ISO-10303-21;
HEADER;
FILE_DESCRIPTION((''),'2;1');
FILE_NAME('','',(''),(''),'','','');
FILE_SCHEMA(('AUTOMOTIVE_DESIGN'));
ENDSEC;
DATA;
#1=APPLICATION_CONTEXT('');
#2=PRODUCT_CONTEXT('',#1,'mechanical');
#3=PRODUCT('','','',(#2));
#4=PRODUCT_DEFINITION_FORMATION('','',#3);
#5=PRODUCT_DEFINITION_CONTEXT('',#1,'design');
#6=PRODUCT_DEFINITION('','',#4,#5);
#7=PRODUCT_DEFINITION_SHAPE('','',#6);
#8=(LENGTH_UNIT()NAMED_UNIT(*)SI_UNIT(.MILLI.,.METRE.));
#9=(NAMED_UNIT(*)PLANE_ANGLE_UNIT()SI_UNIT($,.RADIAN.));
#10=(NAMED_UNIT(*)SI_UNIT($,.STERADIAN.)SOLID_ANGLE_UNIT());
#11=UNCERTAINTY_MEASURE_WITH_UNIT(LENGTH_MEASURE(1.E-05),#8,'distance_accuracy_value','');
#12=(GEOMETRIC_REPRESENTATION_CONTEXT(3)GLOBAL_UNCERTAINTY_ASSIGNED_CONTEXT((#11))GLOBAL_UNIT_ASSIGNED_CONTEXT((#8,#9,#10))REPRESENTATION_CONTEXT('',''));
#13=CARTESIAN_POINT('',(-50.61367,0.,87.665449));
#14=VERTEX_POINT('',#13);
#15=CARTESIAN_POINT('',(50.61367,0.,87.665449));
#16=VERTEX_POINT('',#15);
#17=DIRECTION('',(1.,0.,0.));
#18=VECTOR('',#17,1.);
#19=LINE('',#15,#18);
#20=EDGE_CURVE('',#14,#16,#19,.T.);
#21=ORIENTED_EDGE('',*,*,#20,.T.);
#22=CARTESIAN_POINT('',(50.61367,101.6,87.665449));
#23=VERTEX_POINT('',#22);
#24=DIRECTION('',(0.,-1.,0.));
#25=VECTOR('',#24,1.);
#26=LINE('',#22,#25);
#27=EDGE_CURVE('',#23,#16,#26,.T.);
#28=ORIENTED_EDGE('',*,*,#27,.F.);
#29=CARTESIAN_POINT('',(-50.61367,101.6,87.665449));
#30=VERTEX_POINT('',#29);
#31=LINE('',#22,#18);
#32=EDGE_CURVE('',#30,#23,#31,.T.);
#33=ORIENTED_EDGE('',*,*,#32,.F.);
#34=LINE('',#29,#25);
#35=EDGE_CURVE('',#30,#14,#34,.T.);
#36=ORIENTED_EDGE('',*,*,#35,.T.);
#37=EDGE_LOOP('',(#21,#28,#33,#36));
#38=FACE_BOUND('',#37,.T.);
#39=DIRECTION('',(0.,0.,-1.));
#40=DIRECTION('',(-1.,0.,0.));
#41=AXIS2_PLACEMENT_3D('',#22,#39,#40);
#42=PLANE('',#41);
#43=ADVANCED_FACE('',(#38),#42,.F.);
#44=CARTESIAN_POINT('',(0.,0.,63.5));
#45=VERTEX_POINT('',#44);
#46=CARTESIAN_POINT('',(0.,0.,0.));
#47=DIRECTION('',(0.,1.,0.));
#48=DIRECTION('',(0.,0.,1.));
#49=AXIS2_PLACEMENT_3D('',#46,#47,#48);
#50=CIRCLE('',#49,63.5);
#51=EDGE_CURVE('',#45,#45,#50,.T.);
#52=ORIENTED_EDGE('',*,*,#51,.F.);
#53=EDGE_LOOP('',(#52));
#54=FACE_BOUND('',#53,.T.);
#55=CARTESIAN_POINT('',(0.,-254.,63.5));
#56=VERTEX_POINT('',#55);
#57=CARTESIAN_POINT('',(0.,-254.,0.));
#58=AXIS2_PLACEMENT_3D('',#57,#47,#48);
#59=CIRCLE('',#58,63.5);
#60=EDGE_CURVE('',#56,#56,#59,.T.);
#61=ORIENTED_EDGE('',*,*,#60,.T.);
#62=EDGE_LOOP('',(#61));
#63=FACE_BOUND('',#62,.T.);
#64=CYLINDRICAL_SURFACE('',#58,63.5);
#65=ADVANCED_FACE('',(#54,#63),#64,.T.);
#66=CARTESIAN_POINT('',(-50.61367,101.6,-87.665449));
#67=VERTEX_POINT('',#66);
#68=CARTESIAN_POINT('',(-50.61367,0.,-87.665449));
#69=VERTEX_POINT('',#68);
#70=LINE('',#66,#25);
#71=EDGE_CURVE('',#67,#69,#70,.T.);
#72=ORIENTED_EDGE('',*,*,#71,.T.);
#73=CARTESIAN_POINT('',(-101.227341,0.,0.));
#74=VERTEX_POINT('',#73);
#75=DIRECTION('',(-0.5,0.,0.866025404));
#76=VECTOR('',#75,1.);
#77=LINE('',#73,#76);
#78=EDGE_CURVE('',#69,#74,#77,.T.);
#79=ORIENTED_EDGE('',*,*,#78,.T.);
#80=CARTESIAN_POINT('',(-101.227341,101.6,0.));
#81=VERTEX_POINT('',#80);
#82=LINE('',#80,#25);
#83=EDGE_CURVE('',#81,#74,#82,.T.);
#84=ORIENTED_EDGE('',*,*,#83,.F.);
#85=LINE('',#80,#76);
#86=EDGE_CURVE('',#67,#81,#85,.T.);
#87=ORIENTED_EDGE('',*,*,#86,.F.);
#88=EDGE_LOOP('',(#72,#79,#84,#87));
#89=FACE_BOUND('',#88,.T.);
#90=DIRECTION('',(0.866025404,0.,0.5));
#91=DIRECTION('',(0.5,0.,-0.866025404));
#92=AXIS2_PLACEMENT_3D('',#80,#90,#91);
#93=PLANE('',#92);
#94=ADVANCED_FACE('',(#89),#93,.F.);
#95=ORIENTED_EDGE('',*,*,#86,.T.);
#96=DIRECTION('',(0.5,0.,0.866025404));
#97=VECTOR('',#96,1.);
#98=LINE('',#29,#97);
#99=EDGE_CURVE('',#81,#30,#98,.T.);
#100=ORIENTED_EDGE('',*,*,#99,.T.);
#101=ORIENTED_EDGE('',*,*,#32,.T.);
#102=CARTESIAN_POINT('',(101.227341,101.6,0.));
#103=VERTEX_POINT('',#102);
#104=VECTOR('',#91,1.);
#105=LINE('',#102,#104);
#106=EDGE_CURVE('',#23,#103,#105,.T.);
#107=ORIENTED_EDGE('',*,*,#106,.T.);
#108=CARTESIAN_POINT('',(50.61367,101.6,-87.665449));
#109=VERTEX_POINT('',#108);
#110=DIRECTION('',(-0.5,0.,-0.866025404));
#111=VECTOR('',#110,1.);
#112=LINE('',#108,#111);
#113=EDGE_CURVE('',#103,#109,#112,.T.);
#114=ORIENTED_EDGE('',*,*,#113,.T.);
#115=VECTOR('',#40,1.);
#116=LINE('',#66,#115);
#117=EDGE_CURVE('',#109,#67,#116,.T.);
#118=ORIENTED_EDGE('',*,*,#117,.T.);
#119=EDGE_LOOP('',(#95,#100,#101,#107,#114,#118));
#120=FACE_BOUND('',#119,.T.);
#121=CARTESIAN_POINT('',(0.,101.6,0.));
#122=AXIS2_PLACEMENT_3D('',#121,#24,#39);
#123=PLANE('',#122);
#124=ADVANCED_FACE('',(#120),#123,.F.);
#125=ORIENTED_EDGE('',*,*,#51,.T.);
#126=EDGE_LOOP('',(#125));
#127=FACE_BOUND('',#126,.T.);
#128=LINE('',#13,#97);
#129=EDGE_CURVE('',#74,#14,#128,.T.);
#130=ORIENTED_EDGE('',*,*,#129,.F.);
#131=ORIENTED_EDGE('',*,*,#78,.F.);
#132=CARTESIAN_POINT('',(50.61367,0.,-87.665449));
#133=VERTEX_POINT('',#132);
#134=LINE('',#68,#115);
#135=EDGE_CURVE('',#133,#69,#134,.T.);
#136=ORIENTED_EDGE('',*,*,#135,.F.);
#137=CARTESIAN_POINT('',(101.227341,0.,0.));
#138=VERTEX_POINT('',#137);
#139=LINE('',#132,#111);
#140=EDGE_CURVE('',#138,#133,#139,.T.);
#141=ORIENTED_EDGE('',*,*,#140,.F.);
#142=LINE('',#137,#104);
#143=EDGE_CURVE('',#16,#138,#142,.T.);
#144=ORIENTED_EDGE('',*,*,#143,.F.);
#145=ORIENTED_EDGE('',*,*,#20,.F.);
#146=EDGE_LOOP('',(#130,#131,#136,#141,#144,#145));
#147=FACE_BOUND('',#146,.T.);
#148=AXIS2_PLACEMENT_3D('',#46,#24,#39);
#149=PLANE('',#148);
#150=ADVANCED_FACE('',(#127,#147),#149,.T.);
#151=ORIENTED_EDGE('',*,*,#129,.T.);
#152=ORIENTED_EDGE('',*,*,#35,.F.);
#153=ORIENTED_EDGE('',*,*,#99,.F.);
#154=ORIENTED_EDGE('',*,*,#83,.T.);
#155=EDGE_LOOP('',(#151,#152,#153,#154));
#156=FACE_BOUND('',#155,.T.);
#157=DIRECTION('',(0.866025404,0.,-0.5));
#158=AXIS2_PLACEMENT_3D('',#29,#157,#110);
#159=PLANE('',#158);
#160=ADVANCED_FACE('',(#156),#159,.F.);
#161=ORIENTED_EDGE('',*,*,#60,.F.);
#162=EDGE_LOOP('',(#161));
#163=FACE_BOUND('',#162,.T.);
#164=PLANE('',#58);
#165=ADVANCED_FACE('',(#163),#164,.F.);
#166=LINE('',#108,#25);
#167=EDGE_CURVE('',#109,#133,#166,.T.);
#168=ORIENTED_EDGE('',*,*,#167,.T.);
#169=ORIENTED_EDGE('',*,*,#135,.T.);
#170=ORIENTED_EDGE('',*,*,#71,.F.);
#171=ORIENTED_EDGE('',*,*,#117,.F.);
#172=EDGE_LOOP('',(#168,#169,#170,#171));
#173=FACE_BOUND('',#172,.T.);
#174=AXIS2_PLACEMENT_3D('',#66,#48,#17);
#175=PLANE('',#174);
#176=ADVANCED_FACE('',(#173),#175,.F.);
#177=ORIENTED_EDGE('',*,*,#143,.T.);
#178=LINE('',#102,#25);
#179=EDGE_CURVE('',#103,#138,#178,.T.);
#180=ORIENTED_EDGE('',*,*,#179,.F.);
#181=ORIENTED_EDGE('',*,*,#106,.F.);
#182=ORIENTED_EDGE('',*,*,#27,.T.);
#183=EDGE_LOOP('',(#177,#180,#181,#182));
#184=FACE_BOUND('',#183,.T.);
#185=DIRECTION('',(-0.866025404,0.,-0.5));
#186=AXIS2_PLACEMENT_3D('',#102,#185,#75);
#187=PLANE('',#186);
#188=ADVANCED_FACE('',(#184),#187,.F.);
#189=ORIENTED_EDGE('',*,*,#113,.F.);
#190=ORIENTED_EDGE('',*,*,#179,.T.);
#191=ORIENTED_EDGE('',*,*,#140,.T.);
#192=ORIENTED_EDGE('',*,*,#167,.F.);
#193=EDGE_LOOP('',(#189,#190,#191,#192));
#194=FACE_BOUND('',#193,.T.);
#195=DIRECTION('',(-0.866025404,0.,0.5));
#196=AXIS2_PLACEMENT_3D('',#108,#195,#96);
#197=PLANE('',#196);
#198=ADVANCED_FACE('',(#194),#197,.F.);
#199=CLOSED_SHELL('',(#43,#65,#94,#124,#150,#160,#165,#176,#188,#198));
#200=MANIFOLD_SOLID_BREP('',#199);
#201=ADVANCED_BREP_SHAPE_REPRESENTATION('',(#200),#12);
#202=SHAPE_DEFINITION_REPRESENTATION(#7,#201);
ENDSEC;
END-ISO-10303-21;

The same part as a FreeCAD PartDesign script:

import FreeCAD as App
import Part
import Sketcher
Q = App.Units.Quantity

doc = App.newDocument("Part")
params = doc.addObject("Spreadsheet::Sheet", "Params")
for row, (alias, value) in enumerate([
    ("sketch1_diameter", "5 in"),
    ("pad1_length", "10 in"),
    ("pad2_length", "4 in"),
], start=1):
    params.set(f"A{row}", alias)
    params.set(f"B{row}", "=" + value)
    params.setAlias(f"B{row}", alias)

body = doc.addObject("PartDesign::Body", "Body")

sketch1 = doc.addObject("Sketcher::SketchObject", "Sketch")
body.addObject(sketch1)
sketch1.AttachmentSupport = (doc.XZ_Plane, [""])
sketch1.MapMode = "FlatFace"
sketch1.addGeometry(Part.Circle(App.Vector(0, 0, 0), App.Vector(0, 0, 1), 64), False)
sketch1.addConstraint(Sketcher.Constraint("Coincident", 0, 3, -1, 1))
sketch1.addConstraint(Sketcher.Constraint("Diameter", 0, Q("5 in")))
sketch1.setExpression("Constraints[1]", "Params.sketch1_diameter")
pad1 = doc.addObject("PartDesign::Pad", "Pad")
body.addObject(pad1)
pad1.Profile = sketch1
pad1.setExpression("Length", "Params.pad1_length")

sketch2 = doc.addObject("Sketcher::SketchObject", "Sketch001")
body.addObject(sketch2)
sketch2.AttachmentSupport = (doc.XZ_Plane, [""])
sketch2.MapMode = "FlatFace"
sketch2.addGeometry(Part.LineSegment(App.Vector(51, -88, 0), App.Vector(-51, -88, 0)), False)
sketch2.addGeometry(Part.LineSegment(App.Vector(-51, -88, 0), App.Vector(-101, 0, 0)), False)
sketch2.addGeometry(Part.LineSegment(App.Vector(-101, 0, 0), App.Vector(-51, 88, 0)), False)
sketch2.addGeometry(Part.LineSegment(App.Vector(-51, 88, 0), App.Vector(51, 88, 0)), False)
sketch2.addGeometry(Part.LineSegment(App.Vector(51, 88, 0), App.Vector(101, 0, 0)), False)
sketch2.addGeometry(Part.LineSegment(App.Vector(101, 0, 0), App.Vector(51, -88, 0)), False)
sketch2.addConstraint(Sketcher.Constraint("Coincident", 0, 2, 1, 1))
sketch2.addConstraint(Sketcher.Constraint("Coincident", 1, 2, 2, 1))
sketch2.addConstraint(Sketcher.Constraint("Coincident", 2, 2, 3, 1))
sketch2.addConstraint(Sketcher.Constraint("Coincident", 3, 2, 4, 1))
sketch2.addConstraint(Sketcher.Constraint("Coincident", 4, 2, 5, 1))
sketch2.addConstraint(Sketcher.Constraint("Coincident", 5, 2, 0, 1))
sketch2.addConstraint(Sketcher.Constraint("Horizontal", 0))
sketch2.addConstraint(Sketcher.Constraint("Horizontal", 3))
sketch2.addConstraint(Sketcher.Constraint("Symmetric", 0, 2, 3, 2, -1, 1))
sketch2.addConstraint(Sketcher.Constraint("Symmetric", 1, 2, 4, 2, -1, 1))
sketch2.addConstraint(Sketcher.Constraint("PointOnObject", 1, 2, -1))
sketch2.addConstraint(Sketcher.Constraint("Parallel", 2, 5))
sketch2.addConstraint(Sketcher.Constraint("Vertical", 0, 2, 2, 2))
sketch2.addConstraint(Sketcher.Constraint("Angle", 1, Q("120 deg")))
sketch2.addConstraint(Sketcher.Constraint("DistanceX", 0, 2, 0, 1, Q("101.227341 mm")))
sketch2.addConstraint(Sketcher.Constraint("Distance", 1, Q("101.227341 mm")))
pad2 = doc.addObject("PartDesign::Pad", "Pad001")
body.addObject(pad2)
pad2.Profile = sketch2
pad2.setExpression("Length", "Params.pad2_length")
pad2.Reversed = True

doc.recompute()
